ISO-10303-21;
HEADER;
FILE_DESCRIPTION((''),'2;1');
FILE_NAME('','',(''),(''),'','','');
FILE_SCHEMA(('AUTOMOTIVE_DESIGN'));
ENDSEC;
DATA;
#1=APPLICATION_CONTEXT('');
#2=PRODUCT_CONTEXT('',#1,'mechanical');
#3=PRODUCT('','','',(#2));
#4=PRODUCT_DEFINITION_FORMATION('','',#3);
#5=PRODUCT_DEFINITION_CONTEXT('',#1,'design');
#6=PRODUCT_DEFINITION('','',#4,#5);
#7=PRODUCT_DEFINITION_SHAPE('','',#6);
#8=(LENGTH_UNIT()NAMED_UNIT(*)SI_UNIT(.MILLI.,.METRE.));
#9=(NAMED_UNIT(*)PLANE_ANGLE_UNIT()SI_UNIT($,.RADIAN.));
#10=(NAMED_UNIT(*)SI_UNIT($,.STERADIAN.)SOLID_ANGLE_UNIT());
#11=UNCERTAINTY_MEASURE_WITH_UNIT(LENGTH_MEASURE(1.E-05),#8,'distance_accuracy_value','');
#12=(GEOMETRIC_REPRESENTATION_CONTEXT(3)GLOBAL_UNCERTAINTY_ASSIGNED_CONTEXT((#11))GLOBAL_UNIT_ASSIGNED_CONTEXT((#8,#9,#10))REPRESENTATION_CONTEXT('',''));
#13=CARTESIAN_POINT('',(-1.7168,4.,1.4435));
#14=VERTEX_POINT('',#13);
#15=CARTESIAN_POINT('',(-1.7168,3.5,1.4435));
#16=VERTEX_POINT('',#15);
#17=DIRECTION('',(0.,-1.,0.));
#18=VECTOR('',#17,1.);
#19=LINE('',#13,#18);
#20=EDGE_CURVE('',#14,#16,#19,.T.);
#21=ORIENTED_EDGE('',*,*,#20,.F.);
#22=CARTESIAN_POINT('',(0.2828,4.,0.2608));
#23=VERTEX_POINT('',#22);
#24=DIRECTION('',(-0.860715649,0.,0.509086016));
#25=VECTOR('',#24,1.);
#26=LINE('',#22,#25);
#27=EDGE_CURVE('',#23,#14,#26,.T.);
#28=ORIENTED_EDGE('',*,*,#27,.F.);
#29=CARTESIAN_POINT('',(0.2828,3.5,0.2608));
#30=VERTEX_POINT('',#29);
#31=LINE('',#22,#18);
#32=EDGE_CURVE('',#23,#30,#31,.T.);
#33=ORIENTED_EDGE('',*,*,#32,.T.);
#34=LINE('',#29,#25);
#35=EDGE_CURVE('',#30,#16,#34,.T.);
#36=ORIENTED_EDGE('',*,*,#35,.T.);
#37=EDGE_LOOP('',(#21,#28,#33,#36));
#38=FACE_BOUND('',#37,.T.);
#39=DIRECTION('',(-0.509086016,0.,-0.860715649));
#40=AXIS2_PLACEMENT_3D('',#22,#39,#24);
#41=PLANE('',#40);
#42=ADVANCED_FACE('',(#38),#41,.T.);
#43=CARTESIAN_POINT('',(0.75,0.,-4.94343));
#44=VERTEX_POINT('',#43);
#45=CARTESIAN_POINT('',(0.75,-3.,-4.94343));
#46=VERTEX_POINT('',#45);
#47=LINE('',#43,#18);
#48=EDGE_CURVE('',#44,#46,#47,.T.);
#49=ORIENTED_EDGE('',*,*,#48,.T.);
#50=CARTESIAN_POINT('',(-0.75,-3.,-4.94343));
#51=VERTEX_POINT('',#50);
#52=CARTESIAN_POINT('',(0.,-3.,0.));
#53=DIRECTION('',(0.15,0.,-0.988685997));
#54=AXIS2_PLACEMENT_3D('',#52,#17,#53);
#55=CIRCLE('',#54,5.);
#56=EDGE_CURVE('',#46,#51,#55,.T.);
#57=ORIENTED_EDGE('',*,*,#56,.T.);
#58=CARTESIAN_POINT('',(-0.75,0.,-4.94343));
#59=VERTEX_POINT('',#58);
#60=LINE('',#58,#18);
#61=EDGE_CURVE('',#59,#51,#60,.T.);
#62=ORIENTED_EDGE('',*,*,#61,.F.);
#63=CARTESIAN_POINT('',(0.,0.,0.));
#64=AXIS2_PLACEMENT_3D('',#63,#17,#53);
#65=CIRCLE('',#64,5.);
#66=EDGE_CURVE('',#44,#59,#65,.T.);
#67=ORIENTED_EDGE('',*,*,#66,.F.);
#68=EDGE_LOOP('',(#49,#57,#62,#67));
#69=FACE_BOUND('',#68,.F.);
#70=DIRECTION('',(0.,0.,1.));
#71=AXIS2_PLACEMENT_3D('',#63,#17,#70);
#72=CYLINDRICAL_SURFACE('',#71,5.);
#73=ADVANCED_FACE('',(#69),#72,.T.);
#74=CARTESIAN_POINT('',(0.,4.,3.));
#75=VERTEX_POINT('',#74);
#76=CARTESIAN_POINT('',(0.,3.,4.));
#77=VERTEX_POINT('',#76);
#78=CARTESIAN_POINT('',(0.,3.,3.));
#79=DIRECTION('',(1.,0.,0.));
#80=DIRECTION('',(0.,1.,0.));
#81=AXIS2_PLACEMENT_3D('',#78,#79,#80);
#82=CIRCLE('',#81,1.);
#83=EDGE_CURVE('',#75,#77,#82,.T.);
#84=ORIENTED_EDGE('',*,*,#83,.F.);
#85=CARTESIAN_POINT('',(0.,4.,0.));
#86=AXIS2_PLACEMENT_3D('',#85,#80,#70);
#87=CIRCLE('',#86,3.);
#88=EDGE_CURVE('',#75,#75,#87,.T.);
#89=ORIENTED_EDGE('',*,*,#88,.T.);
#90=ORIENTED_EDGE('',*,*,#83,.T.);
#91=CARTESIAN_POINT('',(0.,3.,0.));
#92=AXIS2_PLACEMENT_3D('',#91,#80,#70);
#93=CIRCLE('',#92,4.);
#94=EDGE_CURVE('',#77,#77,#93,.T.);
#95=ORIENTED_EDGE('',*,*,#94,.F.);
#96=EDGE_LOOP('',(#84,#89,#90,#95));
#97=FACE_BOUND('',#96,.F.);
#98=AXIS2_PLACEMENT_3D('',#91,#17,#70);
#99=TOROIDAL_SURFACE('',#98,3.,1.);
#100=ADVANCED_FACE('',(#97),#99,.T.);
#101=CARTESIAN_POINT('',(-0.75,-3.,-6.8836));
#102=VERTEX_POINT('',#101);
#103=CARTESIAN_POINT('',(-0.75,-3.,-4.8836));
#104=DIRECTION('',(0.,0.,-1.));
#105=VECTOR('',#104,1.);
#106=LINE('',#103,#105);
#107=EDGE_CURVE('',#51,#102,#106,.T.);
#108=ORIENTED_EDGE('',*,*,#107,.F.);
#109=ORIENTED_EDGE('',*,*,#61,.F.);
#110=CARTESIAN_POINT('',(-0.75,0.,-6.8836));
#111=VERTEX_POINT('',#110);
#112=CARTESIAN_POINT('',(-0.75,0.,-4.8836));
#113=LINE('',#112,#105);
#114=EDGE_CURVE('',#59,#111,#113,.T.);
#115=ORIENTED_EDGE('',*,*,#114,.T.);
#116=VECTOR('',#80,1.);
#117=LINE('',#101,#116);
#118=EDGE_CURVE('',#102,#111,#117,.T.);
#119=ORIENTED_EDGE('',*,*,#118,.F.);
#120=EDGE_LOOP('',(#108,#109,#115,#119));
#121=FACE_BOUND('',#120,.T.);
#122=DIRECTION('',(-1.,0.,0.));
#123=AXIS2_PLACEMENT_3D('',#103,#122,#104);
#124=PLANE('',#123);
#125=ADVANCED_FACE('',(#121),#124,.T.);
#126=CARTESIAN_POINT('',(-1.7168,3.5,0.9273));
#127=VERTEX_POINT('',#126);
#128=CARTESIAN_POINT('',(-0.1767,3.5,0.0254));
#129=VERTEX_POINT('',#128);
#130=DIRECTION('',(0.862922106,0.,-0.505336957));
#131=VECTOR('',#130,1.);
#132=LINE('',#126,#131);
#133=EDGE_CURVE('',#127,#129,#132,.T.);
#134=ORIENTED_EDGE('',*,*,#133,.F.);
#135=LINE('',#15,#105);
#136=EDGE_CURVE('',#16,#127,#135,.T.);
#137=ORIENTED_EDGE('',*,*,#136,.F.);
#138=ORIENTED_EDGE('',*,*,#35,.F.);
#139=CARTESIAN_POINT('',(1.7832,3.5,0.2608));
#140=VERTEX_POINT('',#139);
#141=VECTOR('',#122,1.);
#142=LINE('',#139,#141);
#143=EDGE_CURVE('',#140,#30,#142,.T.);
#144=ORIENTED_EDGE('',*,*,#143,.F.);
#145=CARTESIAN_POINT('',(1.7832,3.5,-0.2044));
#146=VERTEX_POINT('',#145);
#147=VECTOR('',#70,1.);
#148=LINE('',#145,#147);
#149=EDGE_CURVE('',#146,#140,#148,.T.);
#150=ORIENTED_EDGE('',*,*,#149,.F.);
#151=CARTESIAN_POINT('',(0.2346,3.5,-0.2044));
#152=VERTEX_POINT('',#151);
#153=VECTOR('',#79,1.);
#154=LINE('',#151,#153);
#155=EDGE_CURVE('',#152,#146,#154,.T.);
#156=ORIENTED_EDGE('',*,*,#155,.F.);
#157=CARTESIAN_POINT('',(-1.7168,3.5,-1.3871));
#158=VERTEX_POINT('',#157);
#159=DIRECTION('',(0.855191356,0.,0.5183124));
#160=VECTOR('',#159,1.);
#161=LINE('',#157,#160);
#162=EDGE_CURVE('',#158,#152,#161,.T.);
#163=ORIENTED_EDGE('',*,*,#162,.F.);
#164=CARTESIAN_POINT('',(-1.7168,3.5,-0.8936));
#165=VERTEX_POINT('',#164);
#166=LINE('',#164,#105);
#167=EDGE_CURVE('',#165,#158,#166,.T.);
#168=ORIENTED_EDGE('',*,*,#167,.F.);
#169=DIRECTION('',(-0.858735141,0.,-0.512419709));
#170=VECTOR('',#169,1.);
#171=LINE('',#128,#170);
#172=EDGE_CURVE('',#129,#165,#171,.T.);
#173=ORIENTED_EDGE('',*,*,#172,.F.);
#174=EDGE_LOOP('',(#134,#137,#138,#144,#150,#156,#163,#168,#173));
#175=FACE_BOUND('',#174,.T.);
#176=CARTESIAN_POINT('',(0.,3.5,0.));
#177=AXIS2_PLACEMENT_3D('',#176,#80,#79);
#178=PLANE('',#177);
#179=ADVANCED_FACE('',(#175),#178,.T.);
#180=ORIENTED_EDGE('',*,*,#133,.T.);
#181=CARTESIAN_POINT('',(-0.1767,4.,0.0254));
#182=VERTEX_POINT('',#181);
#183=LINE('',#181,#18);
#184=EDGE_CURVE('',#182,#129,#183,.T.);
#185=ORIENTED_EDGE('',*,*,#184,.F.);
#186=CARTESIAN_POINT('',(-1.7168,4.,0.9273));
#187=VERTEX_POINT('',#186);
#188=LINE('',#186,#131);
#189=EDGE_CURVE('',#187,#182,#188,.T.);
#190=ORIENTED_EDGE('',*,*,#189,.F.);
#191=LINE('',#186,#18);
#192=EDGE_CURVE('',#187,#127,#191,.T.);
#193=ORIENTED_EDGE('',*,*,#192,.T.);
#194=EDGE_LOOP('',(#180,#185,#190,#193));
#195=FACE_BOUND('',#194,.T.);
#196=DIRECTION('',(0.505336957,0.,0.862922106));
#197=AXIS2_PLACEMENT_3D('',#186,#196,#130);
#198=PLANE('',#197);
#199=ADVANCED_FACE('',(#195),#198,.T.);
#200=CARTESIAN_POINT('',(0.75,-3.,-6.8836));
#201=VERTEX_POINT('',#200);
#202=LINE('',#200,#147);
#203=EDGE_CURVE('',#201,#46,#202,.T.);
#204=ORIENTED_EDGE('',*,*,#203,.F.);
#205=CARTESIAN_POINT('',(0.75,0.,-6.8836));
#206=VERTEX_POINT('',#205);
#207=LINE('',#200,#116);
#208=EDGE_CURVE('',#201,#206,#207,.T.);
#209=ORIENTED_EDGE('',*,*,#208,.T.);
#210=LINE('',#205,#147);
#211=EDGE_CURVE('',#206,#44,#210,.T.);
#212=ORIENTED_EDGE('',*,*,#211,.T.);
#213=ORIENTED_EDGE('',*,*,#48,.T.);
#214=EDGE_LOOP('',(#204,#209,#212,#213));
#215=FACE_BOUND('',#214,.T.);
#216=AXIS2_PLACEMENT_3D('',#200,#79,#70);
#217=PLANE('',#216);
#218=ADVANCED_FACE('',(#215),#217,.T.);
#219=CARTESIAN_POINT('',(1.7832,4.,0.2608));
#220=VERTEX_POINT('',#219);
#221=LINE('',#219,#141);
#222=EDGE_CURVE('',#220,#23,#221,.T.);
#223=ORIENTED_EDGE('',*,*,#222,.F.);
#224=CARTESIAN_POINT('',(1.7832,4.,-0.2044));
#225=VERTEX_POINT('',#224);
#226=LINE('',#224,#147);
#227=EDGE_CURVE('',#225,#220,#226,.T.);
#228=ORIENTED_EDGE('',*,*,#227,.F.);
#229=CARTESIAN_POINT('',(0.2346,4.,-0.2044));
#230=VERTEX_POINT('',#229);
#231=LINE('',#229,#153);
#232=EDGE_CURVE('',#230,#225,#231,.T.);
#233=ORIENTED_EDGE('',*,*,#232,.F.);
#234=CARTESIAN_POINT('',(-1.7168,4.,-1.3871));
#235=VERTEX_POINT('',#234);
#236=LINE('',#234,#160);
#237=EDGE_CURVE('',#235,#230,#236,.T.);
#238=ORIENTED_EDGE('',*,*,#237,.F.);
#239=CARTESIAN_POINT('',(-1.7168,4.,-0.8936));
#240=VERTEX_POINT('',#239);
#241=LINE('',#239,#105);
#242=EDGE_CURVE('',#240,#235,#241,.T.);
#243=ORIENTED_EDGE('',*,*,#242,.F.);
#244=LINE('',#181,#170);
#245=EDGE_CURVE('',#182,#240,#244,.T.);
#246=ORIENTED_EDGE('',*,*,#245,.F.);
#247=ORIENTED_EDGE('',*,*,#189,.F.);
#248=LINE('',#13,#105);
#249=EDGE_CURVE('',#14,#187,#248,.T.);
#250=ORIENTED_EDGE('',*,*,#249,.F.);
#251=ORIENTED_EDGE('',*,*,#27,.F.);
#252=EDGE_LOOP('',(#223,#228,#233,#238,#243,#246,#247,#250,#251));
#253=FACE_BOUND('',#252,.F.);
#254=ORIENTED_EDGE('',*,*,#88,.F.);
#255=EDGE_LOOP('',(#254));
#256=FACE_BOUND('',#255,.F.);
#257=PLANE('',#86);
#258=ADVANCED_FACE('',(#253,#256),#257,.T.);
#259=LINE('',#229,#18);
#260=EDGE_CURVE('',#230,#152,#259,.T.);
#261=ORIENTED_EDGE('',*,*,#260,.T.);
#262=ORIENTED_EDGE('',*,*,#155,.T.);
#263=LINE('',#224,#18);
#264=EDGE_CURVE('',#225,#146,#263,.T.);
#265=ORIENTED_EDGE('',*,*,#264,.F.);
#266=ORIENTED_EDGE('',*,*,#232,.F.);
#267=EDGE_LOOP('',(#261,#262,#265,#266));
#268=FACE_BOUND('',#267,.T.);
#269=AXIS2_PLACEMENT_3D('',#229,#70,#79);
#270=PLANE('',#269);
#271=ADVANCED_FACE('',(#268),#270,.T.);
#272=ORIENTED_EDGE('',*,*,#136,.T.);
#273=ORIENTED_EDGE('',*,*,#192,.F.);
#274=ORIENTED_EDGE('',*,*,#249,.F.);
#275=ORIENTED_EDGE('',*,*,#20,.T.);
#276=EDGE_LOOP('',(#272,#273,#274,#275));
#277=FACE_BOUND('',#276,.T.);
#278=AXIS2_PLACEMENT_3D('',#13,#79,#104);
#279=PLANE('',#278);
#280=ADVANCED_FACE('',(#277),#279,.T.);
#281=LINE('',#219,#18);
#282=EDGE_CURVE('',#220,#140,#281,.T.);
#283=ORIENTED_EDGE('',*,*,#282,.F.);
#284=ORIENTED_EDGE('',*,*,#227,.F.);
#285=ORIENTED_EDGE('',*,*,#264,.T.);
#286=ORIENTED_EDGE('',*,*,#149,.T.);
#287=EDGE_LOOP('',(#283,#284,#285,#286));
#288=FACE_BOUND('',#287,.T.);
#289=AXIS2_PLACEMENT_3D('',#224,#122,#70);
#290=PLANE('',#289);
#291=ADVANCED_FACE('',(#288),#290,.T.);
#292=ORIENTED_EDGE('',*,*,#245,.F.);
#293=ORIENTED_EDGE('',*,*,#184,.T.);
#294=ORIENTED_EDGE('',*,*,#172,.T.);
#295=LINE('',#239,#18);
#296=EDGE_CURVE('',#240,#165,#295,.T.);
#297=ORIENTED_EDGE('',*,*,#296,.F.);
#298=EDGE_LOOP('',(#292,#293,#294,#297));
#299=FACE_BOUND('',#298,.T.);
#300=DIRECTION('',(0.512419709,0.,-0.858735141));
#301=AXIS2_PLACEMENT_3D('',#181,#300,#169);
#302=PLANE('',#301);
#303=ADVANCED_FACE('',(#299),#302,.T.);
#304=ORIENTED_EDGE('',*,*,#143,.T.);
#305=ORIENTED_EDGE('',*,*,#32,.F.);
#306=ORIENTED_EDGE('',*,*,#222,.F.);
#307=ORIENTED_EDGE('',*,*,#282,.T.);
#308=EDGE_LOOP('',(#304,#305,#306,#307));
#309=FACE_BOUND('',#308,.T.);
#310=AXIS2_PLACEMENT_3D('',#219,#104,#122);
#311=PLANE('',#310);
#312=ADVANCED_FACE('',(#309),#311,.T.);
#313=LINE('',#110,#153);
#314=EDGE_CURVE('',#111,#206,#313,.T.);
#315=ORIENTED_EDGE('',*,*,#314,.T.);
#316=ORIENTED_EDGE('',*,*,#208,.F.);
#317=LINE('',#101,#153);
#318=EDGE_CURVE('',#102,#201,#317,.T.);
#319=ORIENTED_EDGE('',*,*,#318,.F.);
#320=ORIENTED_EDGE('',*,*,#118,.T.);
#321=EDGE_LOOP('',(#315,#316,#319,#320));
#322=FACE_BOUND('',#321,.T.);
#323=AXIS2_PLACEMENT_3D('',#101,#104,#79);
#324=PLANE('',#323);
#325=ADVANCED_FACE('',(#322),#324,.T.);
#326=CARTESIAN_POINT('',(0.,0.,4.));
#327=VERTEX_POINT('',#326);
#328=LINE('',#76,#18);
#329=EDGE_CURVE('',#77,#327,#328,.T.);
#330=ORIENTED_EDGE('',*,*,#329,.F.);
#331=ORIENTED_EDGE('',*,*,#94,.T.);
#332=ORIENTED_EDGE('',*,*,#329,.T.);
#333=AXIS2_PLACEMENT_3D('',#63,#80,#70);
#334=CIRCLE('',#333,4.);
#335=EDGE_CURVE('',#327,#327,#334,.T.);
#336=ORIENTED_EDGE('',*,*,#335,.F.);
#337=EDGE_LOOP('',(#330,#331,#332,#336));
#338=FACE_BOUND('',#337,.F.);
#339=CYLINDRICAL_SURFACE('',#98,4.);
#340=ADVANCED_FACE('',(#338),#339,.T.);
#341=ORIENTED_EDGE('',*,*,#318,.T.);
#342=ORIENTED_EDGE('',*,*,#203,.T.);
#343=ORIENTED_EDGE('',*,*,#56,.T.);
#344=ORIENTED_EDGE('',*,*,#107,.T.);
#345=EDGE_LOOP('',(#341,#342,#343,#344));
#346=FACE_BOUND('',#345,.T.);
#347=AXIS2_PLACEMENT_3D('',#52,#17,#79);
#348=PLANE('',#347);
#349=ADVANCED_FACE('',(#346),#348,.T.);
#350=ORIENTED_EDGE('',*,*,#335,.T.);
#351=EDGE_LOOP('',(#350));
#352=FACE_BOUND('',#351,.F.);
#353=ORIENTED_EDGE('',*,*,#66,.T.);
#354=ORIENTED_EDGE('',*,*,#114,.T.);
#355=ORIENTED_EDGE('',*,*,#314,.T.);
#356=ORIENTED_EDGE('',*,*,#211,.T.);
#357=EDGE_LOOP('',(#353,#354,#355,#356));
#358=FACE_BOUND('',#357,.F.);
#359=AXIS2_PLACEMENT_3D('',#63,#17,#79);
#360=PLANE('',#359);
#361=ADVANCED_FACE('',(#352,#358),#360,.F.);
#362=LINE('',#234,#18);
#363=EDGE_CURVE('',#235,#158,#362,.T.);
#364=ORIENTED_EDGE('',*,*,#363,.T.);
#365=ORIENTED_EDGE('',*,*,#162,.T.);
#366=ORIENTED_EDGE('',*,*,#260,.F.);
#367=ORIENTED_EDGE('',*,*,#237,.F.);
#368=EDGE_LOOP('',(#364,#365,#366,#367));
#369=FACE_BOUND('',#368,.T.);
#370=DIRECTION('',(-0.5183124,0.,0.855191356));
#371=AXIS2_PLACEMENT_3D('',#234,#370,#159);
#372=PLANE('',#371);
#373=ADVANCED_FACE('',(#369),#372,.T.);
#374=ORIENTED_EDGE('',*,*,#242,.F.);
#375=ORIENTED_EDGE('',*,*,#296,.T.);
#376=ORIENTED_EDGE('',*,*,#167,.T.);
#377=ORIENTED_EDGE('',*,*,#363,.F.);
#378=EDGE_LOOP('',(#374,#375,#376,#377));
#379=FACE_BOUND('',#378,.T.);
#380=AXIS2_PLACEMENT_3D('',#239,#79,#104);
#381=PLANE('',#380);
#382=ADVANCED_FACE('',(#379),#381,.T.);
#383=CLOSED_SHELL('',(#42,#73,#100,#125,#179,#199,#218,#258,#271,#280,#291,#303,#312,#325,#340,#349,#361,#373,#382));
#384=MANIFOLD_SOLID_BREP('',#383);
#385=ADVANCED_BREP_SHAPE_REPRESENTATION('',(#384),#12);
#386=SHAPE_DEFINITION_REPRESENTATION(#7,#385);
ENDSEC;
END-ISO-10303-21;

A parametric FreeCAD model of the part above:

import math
import FreeCAD as App
import Part
import Sketcher
Q = App.Units.Quantity

doc = App.newDocument("Part")
body = doc.addObject("PartDesign::Body", "Body")

# Sketch on YZ plane
sketch1 = body.newObject("Sketcher::SketchObject", "Sketch")
sketch1.AttachmentSupport = (doc.getObject("YZ_Plane"), [""])
sketch1.MapMode = "FlatFace"
sketch1.addGeometry([
    Part.LineSegment(App.Vector(-3, 0, 0), App.Vector(4, 0, 0)),  # 0
    Part.LineSegment(App.Vector(4, 0, 0), App.Vector(4, 3, 0)),  # 1
    Part.ArcOfCircle(Part.Circle(App.Vector(3, 3, 0), App.Vector(0, 0, 1), 1), math.radians(0), math.radians(90)),  # 2
    Part.LineSegment(App.Vector(3, 4, 0), App.Vector(0, 4, 0)),  # 3
    Part.LineSegment(App.Vector(0, 4, 0), App.Vector(0, 5, 0)),  # 4
    Part.LineSegment(App.Vector(0, 5, 0), App.Vector(-3, 5, 0)),  # 5
    Part.LineSegment(App.Vector(-3, 5, 0), App.Vector(-3, 0, 0)),  # 6
], False)
sketch1.addConstraint([
    Sketcher.Constraint("Coincident", 0, 2, 1, 1),
    Sketcher.Constraint("Tangent", 1, 2, 2, 1),
    Sketcher.Constraint("Tangent", 2, 2, 3, 1),
    Sketcher.Constraint("Coincident", 3, 2, 4, 1),
    Sketcher.Constraint("Coincident", 4, 2, 5, 1),
    Sketcher.Constraint("Coincident", 5, 2, 6, 1),
    Sketcher.Constraint("Coincident", 6, 2, 0, 1),
    Sketcher.Constraint("Horizontal", 0),
    Sketcher.Constraint("Vertical", 1),
    Sketcher.Constraint("Horizontal", 3),
    Sketcher.Constraint("Vertical", 4),
    Sketcher.Constraint("Horizontal", 5),
    Sketcher.Constraint("Vertical", 6),
    Sketcher.Constraint("PointOnObject", 0, 2, -1),
    Sketcher.Constraint("PointOnObject", 3, 2, -2),
    Sketcher.Constraint("Equal", 3, 5),
    Sketcher.Constraint("Equal", 5, 1),
    Sketcher.Constraint("Radius", 2, 1.0),
    Sketcher.Constraint("DistanceX", 3, 2, 3, 1, 3.0),
    Sketcher.Constraint("DistanceY", 4, 1, 4, 2, 1.0),
])
revolution = body.newObject("PartDesign::Revolution", "Revolution")
revolution.Profile = sketch1
revolution.ReferenceAxis = (sketch1, ["H_Axis"])
revolution.Angle = 360

# Sketch on XZ plane
sketch2 = body.newObject("Sketcher::SketchObject", "Sketch001")
sketch2.AttachmentSupport = (doc.getObject("XZ_Plane"), [""])
sketch2.MapMode = "FlatFace"
sketch2.AttachmentOffset = App.Placement(App.Vector(0, 0, -4), App.Rotation())
sketch2.addGeometry([
    Part.LineSegment(App.Vector(0.23, -0.2, 0), App.Vector(-1.72, -1.39, 0)),  # 0
    Part.LineSegment(App.Vector(-1.72, -1.39, 0), App.Vector(-1.72, -0.89, 0)),  # 1
    Part.LineSegment(App.Vector(-1.72, -0.89, 0), App.Vector(-0.18, 0.03, 0)),  # 2
    Part.LineSegment(App.Vector(-0.18, 0.03, 0), App.Vector(-1.72, 0.93, 0)),  # 3
    Part.LineSegment(App.Vector(-1.72, 0.93, 0), App.Vector(-1.72, 1.44, 0)),  # 4
    Part.LineSegment(App.Vector(-1.72, 1.44, 0), App.Vector(0.28, 0.26, 0)),  # 5
    Part.LineSegment(App.Vector(0.28, 0.26, 0), App.Vector(1.78, 0.26, 0)),  # 6
    Part.LineSegment(App.Vector(1.78, 0.26, 0), App.Vector(1.78, -0.2, 0)),  # 7
    Part.LineSegment(App.Vector(1.78, -0.2, 0), App.Vector(0.23, -0.2, 0)),  # 8
], False)
sketch2.addConstraint([
    Sketcher.Constraint("Coincident", 0, 2, 1, 1),
    Sketcher.Constraint("Coincident", 1, 2, 2, 1),
    Sketcher.Constraint("Coincident", 2, 2, 3, 1),
    Sketcher.Constraint("Coincident", 3, 2, 4, 1),
    Sketcher.Constraint("Coincident", 4, 2, 5, 1),
    Sketcher.Constraint("Coincident", 5, 2, 6, 1),
    Sketcher.Constraint("Coincident", 6, 2, 7, 1),
    Sketcher.Constraint("Coincident", 7, 2, 8, 1),
    Sketcher.Constraint("Coincident", 8, 2, 0, 1),
    Sketcher.Constraint("Vertical", 1),
    Sketcher.Constraint("Vertical", 4),
    Sketcher.Constraint("Horizontal", 6),
    Sketcher.Constraint("Vertical", 7),
    Sketcher.Constraint("Horizontal", 8),
    Sketcher.Constraint("Vertical", 1, 2, 3, 2),
    Sketcher.Constraint("Angle", 0, Q("-148.781 deg")),
    Sketcher.Constraint("DistanceX", 3, 2, 6, 2, 3.5),
    Sketcher.Constraint("DistanceX", 1, 2, 2, 2, 1.54),
    Sketcher.Constraint("DistanceX", 6, 1, 6, 2, 1.5004),
    Sketcher.Constraint("DistanceX", 8, 2, 8, 1, 1.5486),
    Sketcher.Constraint("DistanceY", 1, 1, 1, 2, 0.4935),
    Sketcher.Constraint("DistanceY", 4, 1, 4, 2, 0.5162),
    Sketcher.Constraint("DistanceY", 7, 2, 7, 1, 0.4652),
    Sketcher.Constraint("DistanceY", 0, 2, -1, 1, 1.387),
    Sketcher.Constraint("DistanceY", 1, 2, 2, 2, 0.919),
    Sketcher.Constraint("DistanceY", 2, 2, 3, 2, 0.902),
    Sketcher.Constraint("DistanceX", 0, 2, -1, 1, 1.7168),
])
pocket1 = body.newObject("PartDesign::Pocket", "Pocket")
pocket1.Profile = sketch2
pocket1.Length = 0.5
pocket1.Reversed = True

# Sketch on XZ plane
sketch3 = body.newObject("Sketcher::SketchObject", "Sketch002")
sketch3.AttachmentSupport = (doc.getObject("XZ_Plane"), [""])
sketch3.MapMode = "FlatFace"
sketch3.AttachmentOffset = App.Placement(App.Vector(0, 0, 3), App.Rotation())
sketch3.addGeometry([
    Part.LineSegment(App.Vector(0.8, -6.9, 0), App.Vector(0.8, -4.9, 0)),
    Part.LineSegment(App.Vector(0.8, -4.9, 0), App.Vector(-0.8, -4.9, 0)),
    Part.LineSegment(App.Vector(-0.8, -4.9, 0), App.Vector(-0.8, -6.9, 0)),
    Part.LineSegment(App.Vector(-0.8, -6.9, 0), App.Vector(0.8, -6.9, 0)),
], False)
sketch3.addConstraint([
    Sketcher.Constraint("Coincident", 0, 2, 1, 1),
    Sketcher.Constraint("Coincident", 1, 2, 2, 1),
    Sketcher.Constraint("Coincident", 2, 2, 3, 1),
    Sketcher.Constraint("Coincident", 3, 2, 0, 1),
    Sketcher.Constraint("Vertical", 0),
    Sketcher.Constraint("Horizontal", 1),
    Sketcher.Constraint("Vertical", 2),
    Sketcher.Constraint("Horizontal", 3),
    Sketcher.Constraint("DistanceY", 0, 1, 0, 2, 2.0),
    Sketcher.Constraint("DistanceX", 1, 2, 1, 1, 1.5),
    Sketcher.Constraint("DistanceX", -1, 1, 0, 2, 0.75),
    Sketcher.Constraint("DistanceY", 0, 2, -1, 1, 4.8836),
])
pad1 = body.newObject("PartDesign::Pad", "Pad")
pad1.Profile = sketch3
pad1.Length = 3
pad1.Reversed = True

doc.recompute()
